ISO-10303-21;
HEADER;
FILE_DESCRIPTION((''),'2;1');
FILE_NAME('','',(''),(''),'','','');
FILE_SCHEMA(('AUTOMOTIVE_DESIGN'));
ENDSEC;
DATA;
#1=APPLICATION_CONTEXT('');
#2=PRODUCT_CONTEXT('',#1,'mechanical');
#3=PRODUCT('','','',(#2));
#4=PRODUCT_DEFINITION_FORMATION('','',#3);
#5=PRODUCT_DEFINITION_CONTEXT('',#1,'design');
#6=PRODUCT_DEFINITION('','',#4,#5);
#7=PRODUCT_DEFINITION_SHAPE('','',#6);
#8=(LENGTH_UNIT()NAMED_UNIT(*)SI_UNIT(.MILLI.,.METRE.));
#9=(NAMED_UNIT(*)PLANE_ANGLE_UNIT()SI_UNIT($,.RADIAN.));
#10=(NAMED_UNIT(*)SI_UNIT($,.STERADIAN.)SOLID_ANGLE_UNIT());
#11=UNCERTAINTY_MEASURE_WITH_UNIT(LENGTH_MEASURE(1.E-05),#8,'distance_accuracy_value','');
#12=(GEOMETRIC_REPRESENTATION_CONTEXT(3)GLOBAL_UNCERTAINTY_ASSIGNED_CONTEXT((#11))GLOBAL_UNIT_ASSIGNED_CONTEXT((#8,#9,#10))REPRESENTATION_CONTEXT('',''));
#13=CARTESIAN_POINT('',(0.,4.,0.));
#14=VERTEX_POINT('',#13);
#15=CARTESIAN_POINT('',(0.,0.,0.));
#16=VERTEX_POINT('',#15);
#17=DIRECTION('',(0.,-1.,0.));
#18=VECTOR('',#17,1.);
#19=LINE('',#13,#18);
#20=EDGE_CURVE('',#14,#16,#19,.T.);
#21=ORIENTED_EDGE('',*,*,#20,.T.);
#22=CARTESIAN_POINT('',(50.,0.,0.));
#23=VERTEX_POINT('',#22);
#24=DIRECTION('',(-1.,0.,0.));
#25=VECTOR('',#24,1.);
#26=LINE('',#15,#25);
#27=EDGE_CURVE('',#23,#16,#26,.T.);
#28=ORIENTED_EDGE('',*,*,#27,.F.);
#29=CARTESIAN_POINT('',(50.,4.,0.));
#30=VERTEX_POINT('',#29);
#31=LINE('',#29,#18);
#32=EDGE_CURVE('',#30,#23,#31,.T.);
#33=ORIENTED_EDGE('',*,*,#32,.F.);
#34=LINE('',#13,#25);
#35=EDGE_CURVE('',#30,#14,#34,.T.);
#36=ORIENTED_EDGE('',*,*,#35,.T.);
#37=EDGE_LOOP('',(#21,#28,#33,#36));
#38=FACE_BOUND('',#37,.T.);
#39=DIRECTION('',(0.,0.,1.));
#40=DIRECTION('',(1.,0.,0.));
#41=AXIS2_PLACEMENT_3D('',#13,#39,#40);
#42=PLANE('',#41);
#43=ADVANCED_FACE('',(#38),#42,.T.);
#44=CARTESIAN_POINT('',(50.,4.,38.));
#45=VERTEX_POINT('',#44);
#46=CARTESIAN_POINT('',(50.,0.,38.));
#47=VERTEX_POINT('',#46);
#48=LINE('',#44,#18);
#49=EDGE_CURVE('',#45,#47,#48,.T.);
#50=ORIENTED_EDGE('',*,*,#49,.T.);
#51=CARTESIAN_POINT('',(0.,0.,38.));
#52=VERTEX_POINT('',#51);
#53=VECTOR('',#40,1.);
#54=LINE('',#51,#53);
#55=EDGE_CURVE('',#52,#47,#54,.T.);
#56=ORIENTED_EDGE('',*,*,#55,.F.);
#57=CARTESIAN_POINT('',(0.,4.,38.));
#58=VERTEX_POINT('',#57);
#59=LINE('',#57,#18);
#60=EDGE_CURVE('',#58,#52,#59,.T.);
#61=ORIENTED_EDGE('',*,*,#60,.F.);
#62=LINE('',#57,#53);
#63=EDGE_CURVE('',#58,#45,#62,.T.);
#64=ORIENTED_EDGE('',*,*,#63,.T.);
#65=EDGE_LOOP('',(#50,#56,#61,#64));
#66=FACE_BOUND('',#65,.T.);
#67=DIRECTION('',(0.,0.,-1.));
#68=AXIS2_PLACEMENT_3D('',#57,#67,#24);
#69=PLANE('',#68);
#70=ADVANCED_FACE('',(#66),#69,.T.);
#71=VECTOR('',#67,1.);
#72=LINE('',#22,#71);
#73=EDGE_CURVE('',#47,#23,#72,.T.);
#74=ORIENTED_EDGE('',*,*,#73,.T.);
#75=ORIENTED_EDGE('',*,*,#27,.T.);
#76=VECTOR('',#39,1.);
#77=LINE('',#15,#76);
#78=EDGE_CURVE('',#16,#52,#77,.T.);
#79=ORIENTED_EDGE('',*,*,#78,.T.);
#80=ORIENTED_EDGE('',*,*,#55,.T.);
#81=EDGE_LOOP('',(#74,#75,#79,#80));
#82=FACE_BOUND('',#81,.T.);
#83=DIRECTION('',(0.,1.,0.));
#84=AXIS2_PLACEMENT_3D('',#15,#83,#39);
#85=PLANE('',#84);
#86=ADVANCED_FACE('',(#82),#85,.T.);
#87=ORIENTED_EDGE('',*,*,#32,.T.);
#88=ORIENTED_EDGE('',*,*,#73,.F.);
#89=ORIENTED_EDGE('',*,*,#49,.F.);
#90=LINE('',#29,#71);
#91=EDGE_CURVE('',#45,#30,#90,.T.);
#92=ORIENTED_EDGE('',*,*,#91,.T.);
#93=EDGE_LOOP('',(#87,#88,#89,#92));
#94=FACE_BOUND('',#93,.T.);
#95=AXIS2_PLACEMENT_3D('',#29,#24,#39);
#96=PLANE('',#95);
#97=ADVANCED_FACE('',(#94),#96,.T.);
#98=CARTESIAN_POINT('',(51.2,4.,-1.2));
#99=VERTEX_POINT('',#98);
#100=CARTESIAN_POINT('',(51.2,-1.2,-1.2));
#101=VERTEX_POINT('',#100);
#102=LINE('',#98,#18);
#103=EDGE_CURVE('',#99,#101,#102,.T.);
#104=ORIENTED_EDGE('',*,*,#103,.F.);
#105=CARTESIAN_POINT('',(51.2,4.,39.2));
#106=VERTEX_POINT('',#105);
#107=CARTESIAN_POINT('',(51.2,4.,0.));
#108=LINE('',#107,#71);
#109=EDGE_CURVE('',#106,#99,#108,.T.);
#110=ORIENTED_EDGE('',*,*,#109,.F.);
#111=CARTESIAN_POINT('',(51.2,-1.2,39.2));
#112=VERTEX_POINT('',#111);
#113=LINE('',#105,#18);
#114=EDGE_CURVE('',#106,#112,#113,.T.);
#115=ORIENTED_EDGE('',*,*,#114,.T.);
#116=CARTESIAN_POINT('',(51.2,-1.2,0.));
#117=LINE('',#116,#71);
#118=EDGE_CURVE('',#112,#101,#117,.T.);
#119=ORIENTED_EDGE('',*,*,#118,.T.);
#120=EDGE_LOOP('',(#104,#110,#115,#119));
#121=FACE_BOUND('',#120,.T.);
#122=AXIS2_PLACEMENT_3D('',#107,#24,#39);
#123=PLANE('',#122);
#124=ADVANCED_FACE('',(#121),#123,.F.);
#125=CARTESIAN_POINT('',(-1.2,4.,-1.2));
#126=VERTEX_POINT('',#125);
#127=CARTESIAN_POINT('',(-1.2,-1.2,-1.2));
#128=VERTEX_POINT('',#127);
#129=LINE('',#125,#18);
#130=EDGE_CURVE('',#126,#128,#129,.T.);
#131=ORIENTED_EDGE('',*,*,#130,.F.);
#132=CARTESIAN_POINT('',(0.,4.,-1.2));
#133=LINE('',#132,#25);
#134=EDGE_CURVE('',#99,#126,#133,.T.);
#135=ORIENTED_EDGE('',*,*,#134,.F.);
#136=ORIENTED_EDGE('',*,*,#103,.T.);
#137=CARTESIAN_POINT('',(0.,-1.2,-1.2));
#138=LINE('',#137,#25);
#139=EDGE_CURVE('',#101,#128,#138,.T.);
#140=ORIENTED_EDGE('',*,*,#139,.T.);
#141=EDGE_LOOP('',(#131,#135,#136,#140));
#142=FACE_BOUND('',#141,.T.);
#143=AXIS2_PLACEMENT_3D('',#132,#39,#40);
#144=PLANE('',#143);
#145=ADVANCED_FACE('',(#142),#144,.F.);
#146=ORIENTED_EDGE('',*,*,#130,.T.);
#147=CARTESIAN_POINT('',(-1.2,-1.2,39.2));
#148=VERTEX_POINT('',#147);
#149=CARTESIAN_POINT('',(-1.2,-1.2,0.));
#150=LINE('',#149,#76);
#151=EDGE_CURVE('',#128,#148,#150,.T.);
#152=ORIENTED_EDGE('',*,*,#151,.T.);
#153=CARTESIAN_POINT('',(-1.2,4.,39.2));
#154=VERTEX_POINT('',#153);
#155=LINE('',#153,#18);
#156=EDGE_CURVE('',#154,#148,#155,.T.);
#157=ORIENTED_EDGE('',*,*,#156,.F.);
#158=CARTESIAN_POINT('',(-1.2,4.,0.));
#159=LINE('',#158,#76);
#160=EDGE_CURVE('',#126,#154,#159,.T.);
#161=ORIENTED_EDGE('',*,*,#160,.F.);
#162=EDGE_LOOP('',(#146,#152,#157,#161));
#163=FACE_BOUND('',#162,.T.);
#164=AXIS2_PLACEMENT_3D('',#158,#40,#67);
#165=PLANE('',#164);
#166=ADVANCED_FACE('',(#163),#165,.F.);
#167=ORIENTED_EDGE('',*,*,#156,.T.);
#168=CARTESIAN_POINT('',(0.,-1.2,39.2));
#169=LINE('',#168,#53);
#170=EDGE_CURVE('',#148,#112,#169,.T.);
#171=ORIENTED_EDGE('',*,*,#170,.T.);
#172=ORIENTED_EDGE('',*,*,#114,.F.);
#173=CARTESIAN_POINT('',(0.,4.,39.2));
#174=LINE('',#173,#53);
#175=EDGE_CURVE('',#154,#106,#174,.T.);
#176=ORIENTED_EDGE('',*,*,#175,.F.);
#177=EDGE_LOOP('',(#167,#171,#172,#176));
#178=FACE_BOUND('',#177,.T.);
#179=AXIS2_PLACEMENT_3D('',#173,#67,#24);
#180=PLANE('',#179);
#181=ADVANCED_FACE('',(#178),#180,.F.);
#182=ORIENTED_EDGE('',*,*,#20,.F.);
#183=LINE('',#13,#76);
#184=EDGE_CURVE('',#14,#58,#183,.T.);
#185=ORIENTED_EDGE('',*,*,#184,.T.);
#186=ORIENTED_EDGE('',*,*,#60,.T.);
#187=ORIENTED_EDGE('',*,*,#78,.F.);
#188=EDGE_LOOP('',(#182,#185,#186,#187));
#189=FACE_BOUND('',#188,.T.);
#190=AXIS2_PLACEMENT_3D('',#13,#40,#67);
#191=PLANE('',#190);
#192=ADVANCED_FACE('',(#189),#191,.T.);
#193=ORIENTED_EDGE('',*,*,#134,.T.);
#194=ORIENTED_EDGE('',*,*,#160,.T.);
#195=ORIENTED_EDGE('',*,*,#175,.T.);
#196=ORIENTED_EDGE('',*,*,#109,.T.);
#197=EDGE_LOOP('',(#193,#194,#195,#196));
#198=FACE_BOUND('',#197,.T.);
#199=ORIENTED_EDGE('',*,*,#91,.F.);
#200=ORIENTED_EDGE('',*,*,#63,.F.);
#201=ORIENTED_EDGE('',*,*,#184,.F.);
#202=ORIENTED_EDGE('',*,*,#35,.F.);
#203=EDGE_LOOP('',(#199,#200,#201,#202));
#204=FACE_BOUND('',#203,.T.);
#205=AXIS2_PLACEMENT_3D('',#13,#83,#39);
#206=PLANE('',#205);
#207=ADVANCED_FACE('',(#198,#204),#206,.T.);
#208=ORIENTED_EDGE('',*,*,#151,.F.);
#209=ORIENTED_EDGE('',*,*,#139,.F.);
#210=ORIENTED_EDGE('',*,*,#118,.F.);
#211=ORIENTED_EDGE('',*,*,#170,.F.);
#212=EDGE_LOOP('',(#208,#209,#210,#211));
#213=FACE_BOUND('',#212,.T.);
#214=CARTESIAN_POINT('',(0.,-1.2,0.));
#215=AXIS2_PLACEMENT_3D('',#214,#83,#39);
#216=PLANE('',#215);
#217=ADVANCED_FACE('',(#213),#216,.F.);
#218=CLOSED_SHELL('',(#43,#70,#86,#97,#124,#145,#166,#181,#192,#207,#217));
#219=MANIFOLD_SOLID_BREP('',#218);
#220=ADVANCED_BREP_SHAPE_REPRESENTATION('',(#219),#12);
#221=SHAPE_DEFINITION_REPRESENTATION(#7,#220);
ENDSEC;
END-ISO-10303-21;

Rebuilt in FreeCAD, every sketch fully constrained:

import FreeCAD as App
import Part
import Sketcher

V = App.Vector


def faces_at(feature, points):
    """Names of the faces that lie closest to the given points."""
    faces = feature.Shape.Faces
    near = lambda p: min(range(len(faces)), key=lambda i: faces[i].distToShape(Part.Vertex(*p))[0])
    return sorted({f"Face{near(p) + 1}" for p in points})


def add_polygon(sketch, points):
    """Adds a closed chain of lines whose ends are joined by coincident constraints."""
    first, n = sketch.GeometryCount, len(points)
    for a, b in zip(points, points[1:] + points[:1]):
        sketch.addGeometry(Part.LineSegment(App.Vector(*a, 0), App.Vector(*b, 0)), False)
    for i in range(n):
        sketch.addConstraint(Sketcher.Constraint("Coincident", first + i, 2, first + (i + 1) % n, 1))

doc = App.newDocument("Part")
params = doc.addObject("Spreadsheet::Sheet", "Params")
for row, (alias, value) in enumerate([
    ("sketch1_width", "50 mm"),
    ("sketch1_height", "38 mm"),
    ("pad1_length", "4 mm"),
    ("thickness_wall", "1.2 mm"),
], start=1):
    params.set(f"A{row}", alias)
    params.set(f"B{row}", "=" + value)
    params.setAlias(f"B{row}", alias)

body = doc.addObject("PartDesign::Body", "Body")

sketch1 = body.newObject("Sketcher::SketchObject", "Sketch")
sketch1.AttachmentSupport = (doc.getObject("XZ_Plane"), [""])
sketch1.MapMode = "FlatFace"
add_polygon(sketch1, [(0, 0), (0, 38), (50, 38), (50, 0)])
sketch1.addConstraint([
    Sketcher.Constraint("Vertical", 0),
    Sketcher.Constraint("Horizontal", 1),
    Sketcher.Constraint("Vertical", 2),
    Sketcher.Constraint("Horizontal", 3),
    Sketcher.Constraint("Coincident", 3, 2, -1, 1),
    Sketcher.Constraint("DistanceX", 1, 1, 1, 2, 50.0),
    Sketcher.Constraint("DistanceY", 0, 1, 0, 2, 38.0),
])
sketch1.setExpression("Constraints[9]", "Params.sketch1_width")
sketch1.setExpression("Constraints[10]", "Params.sketch1_height")
pad1 = body.newObject("PartDesign::Pad", "Pad")
pad1.Profile = sketch1
pad1.setExpression("Length", "Params.pad1_length")
pad1.Reversed = True
doc.recompute()

thickness = body.newObject("PartDesign::Thickness", "Thickness")
thickness.Base = (pad1, faces_at(pad1, [(25, 4, 19)]))
thickness.setExpression("Value", "Params.thickness_wall")
thickness.Reversed = False
thickness.Join = "Intersection"

doc.recompute()
